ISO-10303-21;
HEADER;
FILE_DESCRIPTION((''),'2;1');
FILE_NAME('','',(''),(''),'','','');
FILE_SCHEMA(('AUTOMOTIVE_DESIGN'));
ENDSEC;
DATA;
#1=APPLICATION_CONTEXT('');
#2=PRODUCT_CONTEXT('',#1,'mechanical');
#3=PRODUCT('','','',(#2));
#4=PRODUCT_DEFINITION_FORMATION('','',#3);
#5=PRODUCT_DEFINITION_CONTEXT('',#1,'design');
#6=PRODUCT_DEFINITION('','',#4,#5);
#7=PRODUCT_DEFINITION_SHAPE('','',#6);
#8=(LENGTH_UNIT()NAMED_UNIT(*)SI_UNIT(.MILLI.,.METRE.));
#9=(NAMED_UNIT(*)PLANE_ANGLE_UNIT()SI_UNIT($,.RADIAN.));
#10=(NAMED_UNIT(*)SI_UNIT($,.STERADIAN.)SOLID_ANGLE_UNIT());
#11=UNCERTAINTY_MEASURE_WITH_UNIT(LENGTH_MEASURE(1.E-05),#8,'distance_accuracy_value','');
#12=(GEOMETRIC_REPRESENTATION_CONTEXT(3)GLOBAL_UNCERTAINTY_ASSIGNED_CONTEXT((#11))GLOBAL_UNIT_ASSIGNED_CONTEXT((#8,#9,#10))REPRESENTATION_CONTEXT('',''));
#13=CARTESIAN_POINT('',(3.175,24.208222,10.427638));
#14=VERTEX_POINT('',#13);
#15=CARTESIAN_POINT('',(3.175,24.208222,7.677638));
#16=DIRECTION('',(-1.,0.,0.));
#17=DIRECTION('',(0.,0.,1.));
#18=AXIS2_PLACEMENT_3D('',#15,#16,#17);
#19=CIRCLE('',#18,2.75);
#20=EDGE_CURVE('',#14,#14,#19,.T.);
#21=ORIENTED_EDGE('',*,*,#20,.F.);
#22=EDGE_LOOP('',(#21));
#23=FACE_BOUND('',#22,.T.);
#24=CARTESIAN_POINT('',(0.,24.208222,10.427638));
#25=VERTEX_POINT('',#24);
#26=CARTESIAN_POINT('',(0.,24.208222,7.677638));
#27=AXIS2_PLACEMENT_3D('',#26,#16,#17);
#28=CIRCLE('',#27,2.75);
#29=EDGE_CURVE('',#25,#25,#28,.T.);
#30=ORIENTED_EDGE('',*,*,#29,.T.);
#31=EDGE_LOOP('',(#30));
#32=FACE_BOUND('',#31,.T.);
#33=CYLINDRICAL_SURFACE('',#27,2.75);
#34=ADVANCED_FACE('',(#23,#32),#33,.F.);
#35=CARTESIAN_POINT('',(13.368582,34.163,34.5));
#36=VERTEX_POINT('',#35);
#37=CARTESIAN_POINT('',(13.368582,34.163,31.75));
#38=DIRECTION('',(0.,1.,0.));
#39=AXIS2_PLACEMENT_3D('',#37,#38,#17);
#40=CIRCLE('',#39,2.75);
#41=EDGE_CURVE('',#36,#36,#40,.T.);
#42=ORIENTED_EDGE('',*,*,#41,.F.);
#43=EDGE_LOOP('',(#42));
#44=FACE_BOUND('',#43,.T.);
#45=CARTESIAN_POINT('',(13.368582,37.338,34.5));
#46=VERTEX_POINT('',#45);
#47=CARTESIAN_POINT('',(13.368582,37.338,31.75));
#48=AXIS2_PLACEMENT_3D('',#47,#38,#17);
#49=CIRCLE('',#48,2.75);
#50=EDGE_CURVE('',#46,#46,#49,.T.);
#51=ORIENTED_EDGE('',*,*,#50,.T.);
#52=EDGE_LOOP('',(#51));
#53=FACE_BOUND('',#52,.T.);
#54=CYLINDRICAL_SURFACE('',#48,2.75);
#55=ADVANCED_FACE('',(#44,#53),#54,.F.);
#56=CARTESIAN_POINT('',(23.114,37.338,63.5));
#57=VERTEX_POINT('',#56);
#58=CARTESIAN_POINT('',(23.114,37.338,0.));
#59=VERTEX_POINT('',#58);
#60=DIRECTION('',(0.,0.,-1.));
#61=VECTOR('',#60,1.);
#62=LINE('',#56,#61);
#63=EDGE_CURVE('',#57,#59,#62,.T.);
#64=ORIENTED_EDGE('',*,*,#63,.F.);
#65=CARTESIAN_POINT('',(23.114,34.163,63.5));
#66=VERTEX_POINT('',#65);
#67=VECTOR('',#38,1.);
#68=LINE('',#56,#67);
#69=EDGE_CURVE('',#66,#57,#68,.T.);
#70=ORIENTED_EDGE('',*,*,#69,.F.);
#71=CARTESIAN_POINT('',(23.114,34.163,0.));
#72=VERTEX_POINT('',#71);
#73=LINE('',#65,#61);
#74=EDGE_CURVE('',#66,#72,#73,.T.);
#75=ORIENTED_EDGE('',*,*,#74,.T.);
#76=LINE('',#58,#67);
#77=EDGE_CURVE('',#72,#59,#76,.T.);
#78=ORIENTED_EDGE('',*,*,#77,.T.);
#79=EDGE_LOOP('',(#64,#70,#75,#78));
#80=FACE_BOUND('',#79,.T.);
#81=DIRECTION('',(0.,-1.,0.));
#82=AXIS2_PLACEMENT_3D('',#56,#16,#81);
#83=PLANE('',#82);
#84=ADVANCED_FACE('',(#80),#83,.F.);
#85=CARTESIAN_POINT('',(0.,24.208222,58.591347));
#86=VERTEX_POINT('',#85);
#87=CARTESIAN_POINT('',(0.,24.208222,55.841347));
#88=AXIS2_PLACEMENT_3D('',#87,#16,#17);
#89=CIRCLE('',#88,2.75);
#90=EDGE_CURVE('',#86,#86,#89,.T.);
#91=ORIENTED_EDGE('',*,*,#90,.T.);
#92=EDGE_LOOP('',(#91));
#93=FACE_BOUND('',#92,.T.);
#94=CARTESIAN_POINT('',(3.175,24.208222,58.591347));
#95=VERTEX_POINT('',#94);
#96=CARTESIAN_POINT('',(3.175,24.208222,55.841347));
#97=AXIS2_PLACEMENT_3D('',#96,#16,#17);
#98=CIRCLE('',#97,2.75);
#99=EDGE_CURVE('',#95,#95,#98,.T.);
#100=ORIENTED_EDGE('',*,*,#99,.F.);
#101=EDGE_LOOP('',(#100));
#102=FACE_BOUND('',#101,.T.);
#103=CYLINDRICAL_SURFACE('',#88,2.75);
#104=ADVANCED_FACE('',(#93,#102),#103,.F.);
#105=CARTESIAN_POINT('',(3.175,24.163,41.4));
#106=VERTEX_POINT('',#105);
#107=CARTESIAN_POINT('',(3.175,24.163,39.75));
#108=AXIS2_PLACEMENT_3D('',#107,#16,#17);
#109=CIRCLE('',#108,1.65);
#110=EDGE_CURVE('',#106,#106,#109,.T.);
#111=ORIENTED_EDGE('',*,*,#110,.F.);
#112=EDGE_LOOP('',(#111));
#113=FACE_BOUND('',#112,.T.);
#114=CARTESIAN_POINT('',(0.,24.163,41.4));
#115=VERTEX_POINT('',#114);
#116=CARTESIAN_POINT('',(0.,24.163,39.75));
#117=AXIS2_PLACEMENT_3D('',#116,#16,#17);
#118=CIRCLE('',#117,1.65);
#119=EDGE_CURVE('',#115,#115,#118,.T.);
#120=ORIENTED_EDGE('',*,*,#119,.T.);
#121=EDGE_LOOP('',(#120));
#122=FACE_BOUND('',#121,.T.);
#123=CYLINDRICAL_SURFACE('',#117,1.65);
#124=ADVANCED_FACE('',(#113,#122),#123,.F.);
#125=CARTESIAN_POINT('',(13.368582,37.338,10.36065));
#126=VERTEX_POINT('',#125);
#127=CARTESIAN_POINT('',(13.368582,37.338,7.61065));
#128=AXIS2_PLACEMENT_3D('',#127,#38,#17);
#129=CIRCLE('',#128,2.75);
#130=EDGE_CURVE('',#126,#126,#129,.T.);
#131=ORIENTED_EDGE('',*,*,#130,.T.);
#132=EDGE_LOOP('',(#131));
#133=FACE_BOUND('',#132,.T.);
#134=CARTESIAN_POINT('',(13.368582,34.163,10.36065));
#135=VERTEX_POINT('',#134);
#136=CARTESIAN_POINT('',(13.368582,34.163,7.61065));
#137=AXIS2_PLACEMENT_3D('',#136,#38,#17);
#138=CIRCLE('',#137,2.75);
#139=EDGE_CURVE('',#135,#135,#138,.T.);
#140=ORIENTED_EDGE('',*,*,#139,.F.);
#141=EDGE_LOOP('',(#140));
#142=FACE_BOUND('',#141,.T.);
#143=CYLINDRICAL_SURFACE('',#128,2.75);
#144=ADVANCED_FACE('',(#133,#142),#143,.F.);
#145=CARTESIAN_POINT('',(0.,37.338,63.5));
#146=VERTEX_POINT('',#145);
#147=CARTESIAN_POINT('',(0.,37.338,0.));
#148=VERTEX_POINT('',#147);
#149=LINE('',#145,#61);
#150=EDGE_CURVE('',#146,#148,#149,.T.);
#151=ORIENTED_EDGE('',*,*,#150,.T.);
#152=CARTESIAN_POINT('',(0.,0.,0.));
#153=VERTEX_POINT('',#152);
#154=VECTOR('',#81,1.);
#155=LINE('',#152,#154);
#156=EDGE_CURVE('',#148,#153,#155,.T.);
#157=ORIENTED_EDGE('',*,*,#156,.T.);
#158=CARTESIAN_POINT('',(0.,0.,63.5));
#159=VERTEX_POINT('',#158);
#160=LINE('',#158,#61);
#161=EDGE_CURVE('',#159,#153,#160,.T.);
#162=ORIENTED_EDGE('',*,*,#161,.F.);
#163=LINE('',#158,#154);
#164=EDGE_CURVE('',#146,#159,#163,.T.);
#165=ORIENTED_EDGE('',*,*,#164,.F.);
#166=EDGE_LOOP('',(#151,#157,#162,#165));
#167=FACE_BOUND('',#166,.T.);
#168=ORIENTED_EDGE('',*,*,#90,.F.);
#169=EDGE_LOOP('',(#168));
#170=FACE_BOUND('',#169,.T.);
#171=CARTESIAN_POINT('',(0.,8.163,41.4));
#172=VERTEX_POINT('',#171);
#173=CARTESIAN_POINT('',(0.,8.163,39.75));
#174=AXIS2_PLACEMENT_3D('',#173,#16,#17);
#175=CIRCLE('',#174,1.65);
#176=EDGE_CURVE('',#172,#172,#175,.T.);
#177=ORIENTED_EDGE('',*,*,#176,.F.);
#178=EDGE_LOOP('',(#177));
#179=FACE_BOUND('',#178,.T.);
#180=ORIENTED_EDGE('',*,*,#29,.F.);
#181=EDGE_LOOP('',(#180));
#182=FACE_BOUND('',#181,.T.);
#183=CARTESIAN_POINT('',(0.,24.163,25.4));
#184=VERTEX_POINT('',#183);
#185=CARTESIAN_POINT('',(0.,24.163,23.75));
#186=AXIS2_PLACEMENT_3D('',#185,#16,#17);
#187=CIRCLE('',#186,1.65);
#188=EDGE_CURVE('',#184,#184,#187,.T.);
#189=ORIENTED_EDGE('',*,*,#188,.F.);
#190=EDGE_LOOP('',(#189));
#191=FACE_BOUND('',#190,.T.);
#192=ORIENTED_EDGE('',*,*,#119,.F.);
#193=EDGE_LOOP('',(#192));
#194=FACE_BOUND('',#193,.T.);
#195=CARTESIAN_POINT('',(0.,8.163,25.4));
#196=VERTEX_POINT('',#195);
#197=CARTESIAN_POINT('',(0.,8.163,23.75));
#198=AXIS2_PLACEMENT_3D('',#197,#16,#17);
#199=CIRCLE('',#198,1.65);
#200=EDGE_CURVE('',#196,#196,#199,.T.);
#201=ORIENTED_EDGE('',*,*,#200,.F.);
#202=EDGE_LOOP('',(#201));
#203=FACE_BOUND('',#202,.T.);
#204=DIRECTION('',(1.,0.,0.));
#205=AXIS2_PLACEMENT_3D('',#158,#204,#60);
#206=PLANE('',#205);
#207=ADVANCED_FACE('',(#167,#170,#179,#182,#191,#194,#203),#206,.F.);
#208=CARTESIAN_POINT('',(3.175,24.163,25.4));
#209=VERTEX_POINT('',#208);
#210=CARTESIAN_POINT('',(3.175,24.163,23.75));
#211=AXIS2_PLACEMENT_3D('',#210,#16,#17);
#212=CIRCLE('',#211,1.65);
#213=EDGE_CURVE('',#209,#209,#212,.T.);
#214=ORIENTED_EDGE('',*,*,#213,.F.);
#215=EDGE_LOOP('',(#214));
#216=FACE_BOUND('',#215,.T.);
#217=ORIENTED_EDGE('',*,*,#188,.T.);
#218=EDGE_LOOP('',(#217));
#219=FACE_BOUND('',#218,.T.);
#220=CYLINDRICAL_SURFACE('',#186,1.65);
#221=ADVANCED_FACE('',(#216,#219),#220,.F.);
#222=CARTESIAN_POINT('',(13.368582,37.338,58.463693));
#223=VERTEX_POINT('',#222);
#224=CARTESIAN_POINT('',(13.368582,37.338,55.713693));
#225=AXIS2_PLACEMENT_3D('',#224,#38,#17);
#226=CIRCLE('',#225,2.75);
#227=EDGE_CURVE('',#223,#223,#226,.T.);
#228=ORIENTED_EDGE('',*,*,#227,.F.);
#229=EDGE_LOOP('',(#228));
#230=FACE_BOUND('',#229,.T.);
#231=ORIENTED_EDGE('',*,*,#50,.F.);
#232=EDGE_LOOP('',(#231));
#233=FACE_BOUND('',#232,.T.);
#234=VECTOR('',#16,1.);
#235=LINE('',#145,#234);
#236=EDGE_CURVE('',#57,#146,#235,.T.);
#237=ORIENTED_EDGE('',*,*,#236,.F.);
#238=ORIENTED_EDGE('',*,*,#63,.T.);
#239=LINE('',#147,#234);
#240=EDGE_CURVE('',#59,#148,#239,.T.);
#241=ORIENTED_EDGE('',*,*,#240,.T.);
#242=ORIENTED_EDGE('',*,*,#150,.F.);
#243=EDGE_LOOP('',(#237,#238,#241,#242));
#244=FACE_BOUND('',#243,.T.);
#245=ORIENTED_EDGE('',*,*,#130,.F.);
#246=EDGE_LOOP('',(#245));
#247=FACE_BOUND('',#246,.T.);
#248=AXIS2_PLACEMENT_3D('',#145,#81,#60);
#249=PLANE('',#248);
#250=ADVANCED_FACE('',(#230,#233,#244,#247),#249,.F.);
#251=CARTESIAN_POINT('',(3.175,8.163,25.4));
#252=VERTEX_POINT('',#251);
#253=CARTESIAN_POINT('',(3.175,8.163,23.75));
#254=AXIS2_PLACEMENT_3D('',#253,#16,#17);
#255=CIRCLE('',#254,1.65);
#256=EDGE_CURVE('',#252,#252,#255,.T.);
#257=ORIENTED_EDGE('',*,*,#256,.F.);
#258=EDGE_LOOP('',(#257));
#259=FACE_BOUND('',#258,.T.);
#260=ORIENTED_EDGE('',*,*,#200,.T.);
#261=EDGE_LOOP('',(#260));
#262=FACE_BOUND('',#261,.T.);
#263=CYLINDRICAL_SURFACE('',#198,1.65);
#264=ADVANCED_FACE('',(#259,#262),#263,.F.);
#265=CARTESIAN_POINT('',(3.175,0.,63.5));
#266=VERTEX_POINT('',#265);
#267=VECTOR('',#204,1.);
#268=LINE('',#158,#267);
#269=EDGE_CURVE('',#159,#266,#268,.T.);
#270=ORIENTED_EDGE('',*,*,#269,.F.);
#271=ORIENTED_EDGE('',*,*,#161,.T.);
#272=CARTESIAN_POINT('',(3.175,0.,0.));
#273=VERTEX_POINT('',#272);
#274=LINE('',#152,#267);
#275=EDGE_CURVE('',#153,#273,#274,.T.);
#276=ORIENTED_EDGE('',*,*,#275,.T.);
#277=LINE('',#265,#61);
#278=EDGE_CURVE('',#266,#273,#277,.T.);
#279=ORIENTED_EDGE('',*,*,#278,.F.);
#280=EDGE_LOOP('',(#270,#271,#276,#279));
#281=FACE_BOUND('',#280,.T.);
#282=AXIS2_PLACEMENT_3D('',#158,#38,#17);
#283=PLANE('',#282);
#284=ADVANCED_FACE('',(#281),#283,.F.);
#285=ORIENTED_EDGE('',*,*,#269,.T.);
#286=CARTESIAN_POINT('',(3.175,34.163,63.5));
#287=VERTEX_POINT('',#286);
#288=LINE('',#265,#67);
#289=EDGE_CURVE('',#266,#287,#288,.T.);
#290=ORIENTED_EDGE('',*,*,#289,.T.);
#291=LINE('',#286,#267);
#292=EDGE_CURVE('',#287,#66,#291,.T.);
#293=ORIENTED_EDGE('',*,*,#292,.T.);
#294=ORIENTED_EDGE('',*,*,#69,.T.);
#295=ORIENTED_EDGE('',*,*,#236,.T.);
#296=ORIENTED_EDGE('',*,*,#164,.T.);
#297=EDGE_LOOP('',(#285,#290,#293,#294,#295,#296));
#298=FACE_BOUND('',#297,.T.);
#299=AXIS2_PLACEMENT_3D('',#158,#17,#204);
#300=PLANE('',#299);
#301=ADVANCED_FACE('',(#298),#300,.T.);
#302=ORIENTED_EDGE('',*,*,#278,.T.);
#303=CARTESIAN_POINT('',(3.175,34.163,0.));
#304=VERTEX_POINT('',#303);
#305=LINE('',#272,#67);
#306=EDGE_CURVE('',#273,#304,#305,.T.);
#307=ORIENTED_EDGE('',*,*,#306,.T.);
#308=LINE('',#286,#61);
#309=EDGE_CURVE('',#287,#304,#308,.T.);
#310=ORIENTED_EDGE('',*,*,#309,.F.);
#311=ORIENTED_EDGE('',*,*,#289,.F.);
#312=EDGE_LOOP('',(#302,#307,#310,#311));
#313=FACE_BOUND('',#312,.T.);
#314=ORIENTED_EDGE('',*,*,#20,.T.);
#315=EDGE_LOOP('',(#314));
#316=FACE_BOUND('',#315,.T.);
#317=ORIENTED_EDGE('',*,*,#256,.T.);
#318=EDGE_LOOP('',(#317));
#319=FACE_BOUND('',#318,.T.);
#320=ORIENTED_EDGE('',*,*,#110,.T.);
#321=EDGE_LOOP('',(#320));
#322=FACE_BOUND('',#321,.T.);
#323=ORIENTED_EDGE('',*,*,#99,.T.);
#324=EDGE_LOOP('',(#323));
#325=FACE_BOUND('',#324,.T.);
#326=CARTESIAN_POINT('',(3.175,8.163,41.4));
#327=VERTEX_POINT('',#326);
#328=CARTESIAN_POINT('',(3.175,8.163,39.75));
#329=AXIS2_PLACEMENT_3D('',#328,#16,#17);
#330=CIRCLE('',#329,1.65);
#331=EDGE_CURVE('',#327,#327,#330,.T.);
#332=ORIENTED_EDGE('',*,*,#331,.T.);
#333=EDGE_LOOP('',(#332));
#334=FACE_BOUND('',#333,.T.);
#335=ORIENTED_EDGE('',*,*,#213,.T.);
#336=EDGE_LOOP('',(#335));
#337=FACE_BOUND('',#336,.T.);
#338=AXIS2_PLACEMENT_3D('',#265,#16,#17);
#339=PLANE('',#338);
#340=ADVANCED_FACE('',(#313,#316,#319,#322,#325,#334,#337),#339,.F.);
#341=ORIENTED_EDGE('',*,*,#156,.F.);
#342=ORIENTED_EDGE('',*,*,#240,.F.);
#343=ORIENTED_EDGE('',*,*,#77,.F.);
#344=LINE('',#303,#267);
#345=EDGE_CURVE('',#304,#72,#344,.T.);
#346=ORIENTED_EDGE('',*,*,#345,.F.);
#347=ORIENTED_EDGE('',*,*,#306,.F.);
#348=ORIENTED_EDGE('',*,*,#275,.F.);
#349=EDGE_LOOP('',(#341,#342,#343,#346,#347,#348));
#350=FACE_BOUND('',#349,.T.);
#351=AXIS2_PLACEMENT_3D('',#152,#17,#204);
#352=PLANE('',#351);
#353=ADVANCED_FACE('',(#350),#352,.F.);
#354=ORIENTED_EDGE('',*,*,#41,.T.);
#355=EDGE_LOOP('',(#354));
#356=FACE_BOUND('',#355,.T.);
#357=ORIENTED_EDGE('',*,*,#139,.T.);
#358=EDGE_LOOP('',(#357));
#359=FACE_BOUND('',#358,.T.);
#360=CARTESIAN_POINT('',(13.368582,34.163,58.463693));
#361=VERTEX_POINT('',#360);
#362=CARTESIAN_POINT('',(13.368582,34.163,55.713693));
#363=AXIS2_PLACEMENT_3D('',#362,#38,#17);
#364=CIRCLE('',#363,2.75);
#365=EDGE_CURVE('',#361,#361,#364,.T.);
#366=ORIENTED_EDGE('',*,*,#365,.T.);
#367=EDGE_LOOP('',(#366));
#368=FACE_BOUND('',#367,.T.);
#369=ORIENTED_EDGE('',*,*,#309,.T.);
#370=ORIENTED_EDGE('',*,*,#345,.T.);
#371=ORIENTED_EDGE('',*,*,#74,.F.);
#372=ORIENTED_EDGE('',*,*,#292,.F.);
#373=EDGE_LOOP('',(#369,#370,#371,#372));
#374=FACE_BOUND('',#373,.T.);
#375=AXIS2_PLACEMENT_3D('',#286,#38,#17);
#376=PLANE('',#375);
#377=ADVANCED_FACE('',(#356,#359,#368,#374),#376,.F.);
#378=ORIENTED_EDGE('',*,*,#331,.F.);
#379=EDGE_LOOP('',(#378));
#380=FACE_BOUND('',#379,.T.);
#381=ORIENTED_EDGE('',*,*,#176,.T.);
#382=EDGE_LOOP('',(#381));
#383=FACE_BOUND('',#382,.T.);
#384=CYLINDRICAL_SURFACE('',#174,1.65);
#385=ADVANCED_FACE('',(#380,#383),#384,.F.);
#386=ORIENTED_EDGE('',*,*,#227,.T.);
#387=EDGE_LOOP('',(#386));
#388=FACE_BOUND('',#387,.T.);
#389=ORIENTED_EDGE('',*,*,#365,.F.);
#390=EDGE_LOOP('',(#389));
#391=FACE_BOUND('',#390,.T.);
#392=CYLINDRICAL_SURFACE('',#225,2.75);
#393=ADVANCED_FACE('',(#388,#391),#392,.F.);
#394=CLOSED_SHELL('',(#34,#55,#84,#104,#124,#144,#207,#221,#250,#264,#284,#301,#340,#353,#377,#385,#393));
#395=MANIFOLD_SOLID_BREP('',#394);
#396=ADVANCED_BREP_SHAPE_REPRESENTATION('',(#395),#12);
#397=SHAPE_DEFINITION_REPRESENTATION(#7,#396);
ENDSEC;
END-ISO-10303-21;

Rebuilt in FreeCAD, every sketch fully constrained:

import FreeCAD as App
import Part
import Sketcher
from FreeCAD import Vector
Q = App.Units.Quantity


def add_polygon(sketch, points):
    """Adds a closed chain of lines whose ends are joined by coincident constraints."""
    first, n = sketch.GeometryCount, len(points)
    for a, b in zip(points, points[1:] + points[:1]):
        sketch.addGeometry(Part.LineSegment(App.Vector(*a, 0), App.Vector(*b, 0)), False)
    for i in range(n):
        sketch.addConstraint(Sketcher.Constraint("Coincident", first + i, 2, first + (i + 1) % n, 1))

doc = App.newDocument("Part")
params = doc.addObject("Spreadsheet::Sheet", "Params")
for row, (alias, value) in enumerate([
    ("sketch1_width", "0.91 in"),
    ("sketch1_height", "1.47 in"),
    ("sketch1_width2", "0.125 in"),
    ("pad1_length", "2.5 in"),
    ("hole_diameter", "5.5 mm"),
    ("hole2_diameter", "5.5 mm"),
    ("hole3_diameter", "5.5 mm"),
    ("hole4_diameter", "5.5 mm"),
    ("hole5_diameter", "5.5 mm"),
    ("hole6_diameter", "3.3 mm"),
], start=1):
    params.set(f"A{row}", alias)
    params.set(f"B{row}", "=" + value)
    params.setAlias(f"B{row}", alias)

body = doc.addObject("PartDesign::Body", "Body")

sketch1 = body.newObject("Sketcher::SketchObject", "Sketch")
sketch1.AttachmentSupport = (doc.getObject("XY_Plane"), [""])
sketch1.MapMode = "FlatFace"
add_polygon(sketch1, [(0, 37.338), (0, 0), (3.175, 0), (3.175, 34.163), (23.114, 34.163), (23.114, 37.338)])
sketch1.addConstraint([
    Sketcher.Constraint("Vertical", 0),
    Sketcher.Constraint("Horizontal", 1),
    Sketcher.Constraint("Vertical", 2),
    Sketcher.Constraint("Horizontal", 3),
    Sketcher.Constraint("Vertical", 4),
    Sketcher.Constraint("Horizontal", 5),
    Sketcher.Constraint("Coincident", 0, 2, -1, 1),
    Sketcher.Constraint("Equal", 1, 4),
    Sketcher.Constraint("DistanceX", 5, 2, 5, 1, Q("0.91 in")),
    Sketcher.Constraint("DistanceY", 0, 2, 0, 1, Q("1.47 in")),
    Sketcher.Constraint("DistanceX", 1, 1, 1, 2, Q("0.125 in")),
])
sketch1.setExpression("Constraints[14]", "Params.sketch1_width")
sketch1.setExpression("Constraints[15]", "Params.sketch1_height")
sketch1.setExpression("Constraints[16]", "Params.sketch1_width2")
pad1 = body.newObject("PartDesign::Pad", "Pad")
pad1.Profile = sketch1
pad1.setExpression("Length", "Params.pad1_length")

sketch2 = body.newObject("Sketcher::SketchObject", "Sketch001")
sketch2.AttachmentSupport = (doc.getObject("YZ_Plane"), [""])
sketch2.MapMode = "FlatFace"
sketch2.addGeometry(Part.Circle(Vector(24.208222, 55.841347, 0), Vector(0, 0, 1), 2.75), False)
sketch2.addConstraint([
    Sketcher.Constraint("Diameter", 0, Q("5.5 mm")),
    Sketcher.Constraint("DistanceX", -1, 1, 0, 3, Q("24.208222 mm")),
    Sketcher.Constraint("DistanceY", -1, 1, 0, 3, Q("55.841347 mm")),
])
doc.recompute()
hole = body.newObject("PartDesign::Hole", "Hole")
hole.Profile = sketch2
hole.ThreadType = "None"
hole.setExpression("Diameter", "Params.hole_diameter")
hole.DepthType = "ThroughAll"
hole.Reversed = True

sketch3 = body.newObject("Sketcher::SketchObject", "Sketch002")
sketch3.AttachmentSupport = (doc.getObject("YZ_Plane"), [""])
sketch3.MapMode = "FlatFace"
sketch3.addGeometry(Part.Circle(Vector(24.208222, 7.677638, 0), Vector(0, 0, 1), 2.75), False)
sketch3.addConstraint([
    Sketcher.Constraint("Diameter", 0, Q("5.5 mm")),
    Sketcher.Constraint("DistanceX", -1, 1, 0, 3, Q("24.208222 mm")),
    Sketcher.Constraint("DistanceY", -1, 1, 0, 3, Q("7.677638 mm")),
])
doc.recompute()
hole2 = body.newObject("PartDesign::Hole", "Hole001")
hole2.Profile = sketch3
hole2.ThreadType = "None"
hole2.setExpression("Diameter", "Params.hole2_diameter")
hole2.DepthType = "ThroughAll"
hole2.Reversed = True

sketch4 = body.newObject("Sketcher::SketchObject", "Sketch003")
sketch4.AttachmentSupport = (doc.getObject("XZ_Plane"), [""])
sketch4.MapMode = "FlatFace"
sketch4.AttachmentOffset = App.Placement(Vector(0, 0, -1.47 * 25.4), App.Rotation())
sketch4.addGeometry(Part.Circle(Vector(13.368582, 31.75, 0), Vector(0, 0, 1), 2.75), False)
sketch4.addConstraint([
    Sketcher.Constraint("Diameter", 0, Q("5.5 mm")),
    Sketcher.Constraint("DistanceY", -1, 1, 0, 3, Q("1.25 in")),
    Sketcher.Constraint("DistanceX", -1, 1, 0, 3, Q("13.368582 mm")),
])
doc.recompute()
hole3 = body.newObject("PartDesign::Hole", "Hole002")
hole3.Profile = sketch4
hole3.ThreadType = "None"
hole3.setExpression("Diameter", "Params.hole3_diameter")
hole3.DepthType = "ThroughAll"
hole3.Reversed = True

sketch5 = body.newObject("Sketcher::SketchObject", "Sketch004")
sketch5.AttachmentSupport = (doc.getObject("XZ_Plane"), [""])
sketch5.MapMode = "FlatFace"
sketch5.AttachmentOffset = App.Placement(Vector(0, 0, -1.47 * 25.4), App.Rotation())
sketch5.addGeometry(Part.Circle(Vector(13.368582, 55.713693, 0), Vector(0, 0, 1), 2.75), False)
sketch5.addConstraint([
    Sketcher.Constraint("Diameter", 0, Q("5.5 mm")),
    Sketcher.Constraint("DistanceX", -1, 1, 0, 3, Q("13.368582 mm")),
    Sketcher.Constraint("DistanceY", -1, 1, 0, 3, Q("55.713693 mm")),
])
doc.recompute()
hole4 = body.newObject("PartDesign::Hole", "Hole003")
hole4.Profile = sketch5
hole4.ThreadType = "None"
hole4.setExpression("Diameter", "Params.hole4_diameter")
hole4.DepthType = "ThroughAll"
hole4.Reversed = True

sketch6 = body.newObject("Sketcher::SketchObject", "Sketch005")
sketch6.AttachmentSupport = (doc.getObject("XZ_Plane"), [""])
sketch6.MapMode = "FlatFace"
sketch6.AttachmentOffset = App.Placement(Vector(0, 0, -1.47 * 25.4), App.Rotation())
sketch6.addGeometry(Part.Circle(Vector(13.368582, 7.61065, 0), Vector(0, 0, 1), 2.75), False)
sketch6.addConstraint([
    Sketcher.Constraint("Diameter", 0, Q("5.5 mm")),
    Sketcher.Constraint("DistanceY", -1, 1, 0, 3, Q("7.61065 mm")),
    Sketcher.Constraint("DistanceX", -1, 1, 0, 3, Q("13.368582 mm")),
])
doc.recompute()
hole5 = body.newObject("PartDesign::Hole", "Hole004")
hole5.Profile = sketch6
hole5.ThreadType = "None"
hole5.setExpression("Diameter", "Params.hole5_diameter")
hole5.DepthType = "ThroughAll"
hole5.Reversed = True

sketch7 = body.newObject("Sketcher::SketchObject", "Sketch006")
sketch7.AttachmentSupport = (doc.getObject("YZ_Plane"), [""])
sketch7.MapMode = "FlatFace"
sketch7.addGeometry([
    Part.Circle(Vector(24.163, 23.75, 0), Vector(0, 0, 1), 1.65),
    Part.Circle(Vector(8.163, 23.75, 0), Vector(0, 0, 1), 1.65),
    Part.Circle(Vector(8.163, 39.75, 0), Vector(0, 0, 1), 1.65),
    Part.Circle(Vector(24.163, 39.75, 0), Vector(0, 0, 1), 1.65),
], False)
sketch7.addConstraint([
    Sketcher.Constraint("Equal", 0, 1),
    Sketcher.Constraint("Equal", 1, 2),
    Sketcher.Constraint("Equal", 2, 3),
    Sketcher.Constraint("Horizontal", 0, 3, 1, 3),
    Sketcher.Constraint("Horizontal", 2, 3, 3, 3),
    Sketcher.Constraint("Vertical", 1, 3, 2, 3),
    Sketcher.Constraint("Vertical", 0, 3, 3, 3),
    Sketcher.Constraint("Diameter", 0, Q("3.3 mm")),
    Sketcher.Constraint("DistanceX", -1, 1, 0, 3, Q("24.163 mm")),
    Sketcher.Constraint("DistanceY", -1, 1, 0, 3, Q("23.75 mm")),
    Sketcher.Constraint("DistanceX", -1, 1, 1, 3, Q("8.163 mm")),
    Sketcher.Constraint("DistanceY", -1, 1, 2, 3, Q("39.75 mm")),
])
doc.recompute()
hole6 = body.newObject("PartDesign::Hole", "Hole005")
hole6.Profile = sketch7
hole6.ThreadType = "None"
hole6.setExpression("Diameter", "Params.hole6_diameter")
hole6.DepthType = "ThroughAll"
hole6.Reversed = True

doc.recompute()
